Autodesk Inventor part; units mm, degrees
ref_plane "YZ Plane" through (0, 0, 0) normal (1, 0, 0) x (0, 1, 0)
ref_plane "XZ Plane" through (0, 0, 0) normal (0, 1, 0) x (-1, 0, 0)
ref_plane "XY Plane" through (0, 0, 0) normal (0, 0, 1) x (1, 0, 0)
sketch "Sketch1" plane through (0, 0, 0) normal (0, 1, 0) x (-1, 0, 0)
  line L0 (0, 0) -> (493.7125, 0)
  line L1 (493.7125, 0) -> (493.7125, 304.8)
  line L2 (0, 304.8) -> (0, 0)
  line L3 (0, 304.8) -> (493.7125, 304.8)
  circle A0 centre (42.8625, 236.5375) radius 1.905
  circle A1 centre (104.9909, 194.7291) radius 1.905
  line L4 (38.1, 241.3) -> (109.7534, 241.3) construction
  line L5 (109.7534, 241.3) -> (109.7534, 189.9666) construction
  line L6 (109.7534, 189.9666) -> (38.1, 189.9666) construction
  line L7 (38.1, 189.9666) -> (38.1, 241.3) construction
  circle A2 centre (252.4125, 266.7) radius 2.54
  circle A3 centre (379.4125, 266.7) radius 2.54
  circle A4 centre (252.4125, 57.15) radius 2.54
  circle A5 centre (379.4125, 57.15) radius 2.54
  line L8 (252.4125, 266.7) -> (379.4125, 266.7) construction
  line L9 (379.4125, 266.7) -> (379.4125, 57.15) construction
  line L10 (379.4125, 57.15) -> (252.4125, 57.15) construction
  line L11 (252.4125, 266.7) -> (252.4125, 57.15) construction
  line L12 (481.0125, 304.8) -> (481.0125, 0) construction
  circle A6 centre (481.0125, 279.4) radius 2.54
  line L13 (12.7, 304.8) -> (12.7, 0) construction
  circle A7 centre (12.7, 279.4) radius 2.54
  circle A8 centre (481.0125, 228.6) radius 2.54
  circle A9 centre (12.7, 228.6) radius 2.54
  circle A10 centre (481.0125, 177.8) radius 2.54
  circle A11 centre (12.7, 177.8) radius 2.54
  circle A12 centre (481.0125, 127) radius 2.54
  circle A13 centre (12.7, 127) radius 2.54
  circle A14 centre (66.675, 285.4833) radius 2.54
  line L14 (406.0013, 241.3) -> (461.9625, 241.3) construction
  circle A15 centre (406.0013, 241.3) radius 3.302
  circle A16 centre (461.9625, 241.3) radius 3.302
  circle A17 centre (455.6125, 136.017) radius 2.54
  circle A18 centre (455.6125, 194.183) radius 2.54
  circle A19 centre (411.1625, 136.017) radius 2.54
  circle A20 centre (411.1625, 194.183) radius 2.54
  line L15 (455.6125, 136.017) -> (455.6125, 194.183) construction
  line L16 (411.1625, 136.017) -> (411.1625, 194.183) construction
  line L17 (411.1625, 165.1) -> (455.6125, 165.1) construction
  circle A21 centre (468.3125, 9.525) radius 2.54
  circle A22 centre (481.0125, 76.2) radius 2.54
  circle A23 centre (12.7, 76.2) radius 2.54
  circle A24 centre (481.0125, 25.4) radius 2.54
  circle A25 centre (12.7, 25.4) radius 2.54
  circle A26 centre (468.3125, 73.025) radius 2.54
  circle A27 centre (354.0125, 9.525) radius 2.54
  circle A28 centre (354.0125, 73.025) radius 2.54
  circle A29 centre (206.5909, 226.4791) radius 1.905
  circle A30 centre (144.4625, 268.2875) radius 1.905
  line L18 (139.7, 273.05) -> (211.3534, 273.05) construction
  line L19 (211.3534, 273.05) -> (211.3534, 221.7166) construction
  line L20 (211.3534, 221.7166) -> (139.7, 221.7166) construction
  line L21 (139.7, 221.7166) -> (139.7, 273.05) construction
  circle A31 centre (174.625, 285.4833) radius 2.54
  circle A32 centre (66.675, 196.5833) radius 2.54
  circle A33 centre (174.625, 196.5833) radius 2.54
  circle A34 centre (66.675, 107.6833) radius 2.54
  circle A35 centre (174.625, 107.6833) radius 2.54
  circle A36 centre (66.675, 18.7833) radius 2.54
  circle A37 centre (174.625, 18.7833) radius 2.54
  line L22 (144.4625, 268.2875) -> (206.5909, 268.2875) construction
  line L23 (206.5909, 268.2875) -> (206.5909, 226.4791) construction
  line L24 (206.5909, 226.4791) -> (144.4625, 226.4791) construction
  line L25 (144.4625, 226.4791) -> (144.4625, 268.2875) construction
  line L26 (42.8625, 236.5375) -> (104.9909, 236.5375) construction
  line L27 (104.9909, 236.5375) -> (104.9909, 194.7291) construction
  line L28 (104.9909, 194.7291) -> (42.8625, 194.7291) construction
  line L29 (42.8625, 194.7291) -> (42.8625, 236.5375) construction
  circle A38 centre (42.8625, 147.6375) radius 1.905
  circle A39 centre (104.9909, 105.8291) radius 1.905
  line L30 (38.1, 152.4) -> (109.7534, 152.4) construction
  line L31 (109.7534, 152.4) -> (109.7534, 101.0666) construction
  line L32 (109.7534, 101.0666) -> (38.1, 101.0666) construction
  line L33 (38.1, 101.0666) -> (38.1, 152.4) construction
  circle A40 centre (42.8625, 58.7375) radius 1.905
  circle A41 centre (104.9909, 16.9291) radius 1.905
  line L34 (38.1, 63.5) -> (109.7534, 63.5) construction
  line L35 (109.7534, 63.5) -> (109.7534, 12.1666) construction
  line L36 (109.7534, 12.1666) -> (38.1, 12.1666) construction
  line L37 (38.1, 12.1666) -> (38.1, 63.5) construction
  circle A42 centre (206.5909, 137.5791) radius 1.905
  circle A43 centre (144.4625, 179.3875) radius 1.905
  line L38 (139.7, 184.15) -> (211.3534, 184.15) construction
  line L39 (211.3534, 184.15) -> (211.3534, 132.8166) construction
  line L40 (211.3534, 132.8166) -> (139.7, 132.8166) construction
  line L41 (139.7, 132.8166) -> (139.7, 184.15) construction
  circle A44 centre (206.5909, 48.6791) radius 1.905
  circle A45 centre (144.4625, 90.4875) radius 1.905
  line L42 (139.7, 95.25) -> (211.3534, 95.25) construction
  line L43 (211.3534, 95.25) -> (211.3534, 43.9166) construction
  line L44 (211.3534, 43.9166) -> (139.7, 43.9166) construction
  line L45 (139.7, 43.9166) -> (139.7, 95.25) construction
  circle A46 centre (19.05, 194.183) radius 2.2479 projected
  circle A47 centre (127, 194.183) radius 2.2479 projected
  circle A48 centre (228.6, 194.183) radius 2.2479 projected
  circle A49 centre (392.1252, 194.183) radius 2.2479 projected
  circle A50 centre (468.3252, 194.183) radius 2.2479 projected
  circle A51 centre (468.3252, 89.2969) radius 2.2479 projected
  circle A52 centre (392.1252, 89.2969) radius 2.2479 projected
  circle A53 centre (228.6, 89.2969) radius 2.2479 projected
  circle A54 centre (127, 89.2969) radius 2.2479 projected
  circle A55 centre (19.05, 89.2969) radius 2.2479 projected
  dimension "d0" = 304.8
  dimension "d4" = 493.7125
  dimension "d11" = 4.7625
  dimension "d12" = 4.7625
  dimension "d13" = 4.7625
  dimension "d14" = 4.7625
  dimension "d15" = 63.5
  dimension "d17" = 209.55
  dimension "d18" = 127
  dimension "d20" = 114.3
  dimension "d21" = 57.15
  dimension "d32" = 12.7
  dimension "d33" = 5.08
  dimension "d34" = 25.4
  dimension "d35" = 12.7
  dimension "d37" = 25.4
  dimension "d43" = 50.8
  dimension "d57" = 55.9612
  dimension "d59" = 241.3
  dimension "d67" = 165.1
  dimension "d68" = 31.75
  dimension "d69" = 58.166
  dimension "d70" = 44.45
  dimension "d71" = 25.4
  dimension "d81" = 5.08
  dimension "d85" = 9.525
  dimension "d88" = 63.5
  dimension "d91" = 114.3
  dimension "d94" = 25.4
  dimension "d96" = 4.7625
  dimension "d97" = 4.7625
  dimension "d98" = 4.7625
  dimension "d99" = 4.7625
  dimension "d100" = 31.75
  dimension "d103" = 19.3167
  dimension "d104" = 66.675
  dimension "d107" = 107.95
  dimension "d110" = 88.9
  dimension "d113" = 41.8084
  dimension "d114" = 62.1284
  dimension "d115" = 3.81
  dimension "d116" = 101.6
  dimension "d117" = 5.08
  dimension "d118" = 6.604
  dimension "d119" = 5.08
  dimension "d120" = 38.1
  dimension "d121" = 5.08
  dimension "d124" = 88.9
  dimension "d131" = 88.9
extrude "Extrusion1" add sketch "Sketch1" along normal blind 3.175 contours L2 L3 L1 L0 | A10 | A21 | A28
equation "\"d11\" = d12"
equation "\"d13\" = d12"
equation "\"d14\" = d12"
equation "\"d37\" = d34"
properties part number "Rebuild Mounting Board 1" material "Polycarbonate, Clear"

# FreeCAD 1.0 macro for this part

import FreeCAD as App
import Part
import Sketcher
Q = App.Units.Quantity


def add_polygon(sketch, points):
    """Adds a closed chain of lines whose ends are joined by coincident constraints."""
    first, n = sketch.GeometryCount, len(points)
    for a, b in zip(points, points[1:] + points[:1]):
        sketch.addGeometry(Part.LineSegment(App.Vector(*a, 0), App.Vector(*b, 0)), False)
    for i in range(n):
        sketch.addConstraint(Sketcher.Constraint("Coincident", first + i, 2, first + (i + 1) % n, 1))

doc = App.newDocument("Part")
body = doc.addObject("PartDesign::Body", "Body")

# Sketch on XZ plane
sketch1 = doc.addObject("Sketcher::SketchObject", "Sketch")
body.addObject(sketch1)
sketch1.AttachmentSupport = (doc.XZ_Plane, [""])
sketch1.MapMode = "FlatFace"
add_polygon(sketch1, [(0, 304.8), (0, 0), (-493.7, 0), (-493.7, 304.8)])  # lines 0-3
sketch1.addGeometry(Part.Circle(App.Vector(-12.7, 25.4, 0), App.Vector(0, 0, 1), 2.5), False)  # 4
sketch1.addGeometry(Part.Circle(App.Vector(-66.7, 18.8, 0), App.Vector(0, 0, 1), 2.5), False)  # 5
sketch1.addGeometry(Part.Circle(App.Vector(-105, 16.9, 0), App.Vector(0, 0, 1), 1.9), False)  # 6
sketch1.addGeometry(Part.Circle(App.Vector(-42.9, 58.7, 0), App.Vector(0, 0, 1), 1.9), False)  # 7
sketch1.addGeometry(Part.Circle(App.Vector(-174.6, 18.8, 0), App.Vector(0, 0, 1), 2.5), False)  # 8
sketch1.addGeometry(Part.Circle(App.Vector(-206.6, 48.7, 0), App.Vector(0, 0, 1), 1.9), False)  # 9
sketch1.addGeometry(Part.Circle(App.Vector(-12.7, 76.2, 0), App.Vector(0, 0, 1), 2.5), False)  # 10
sketch1.addGeometry(Part.Circle(App.Vector(-19.1, 89.3, 0), App.Vector(0, 0, 1), 2.2), False)  # 11
sketch1.addGeometry(Part.Circle(App.Vector(-66.7, 107.7, 0), App.Vector(0, 0, 1), 2.5), False)  # 12
sketch1.addGeometry(Part.Circle(App.Vector(-105, 105.8, 0), App.Vector(0, 0, 1), 1.9), False)  # 13
sketch1.addGeometry(Part.Circle(App.Vector(-12.7, 127, 0), App.Vector(0, 0, 1), 2.5), False)  # 14
sketch1.addGeometry(Part.Circle(App.Vector(-42.9, 147.6, 0), App.Vector(0, 0, 1), 1.9), False)  # 15
sketch1.addGeometry(Part.Circle(App.Vector(-127, 89.3, 0), App.Vector(0, 0, 1), 2.2), False)  # 16
sketch1.addGeometry(Part.Circle(App.Vector(-144.5, 90.5, 0), App.Vector(0, 0, 1), 1.9), False)  # 17
sketch1.addGeometry(Part.Circle(App.Vector(-174.6, 107.7, 0), App.Vector(0, 0, 1), 2.5), False)  # 18
sketch1.addGeometry(Part.Circle(App.Vector(-228.6, 89.3, 0), App.Vector(0, 0, 1), 2.2), False)  # 19
sketch1.addGeometry(Part.Circle(App.Vector(-206.6, 137.6, 0), App.Vector(0, 0, 1), 1.9), False)  # 20
sketch1.addGeometry(Part.Circle(App.Vector(-354, 9.5, 0), App.Vector(0, 0, 1), 2.5), False)  # 21
sketch1.addGeometry(Part.Circle(App.Vector(-252.4, 57.1, 0), App.Vector(0, 0, 1), 2.5), False)  # 22
sketch1.addGeometry(Part.Circle(App.Vector(-481, 25.4, 0), App.Vector(0, 0, 1), 2.5), False)  # 23
sketch1.addGeometry(Part.Circle(App.Vector(-379.4, 57.1, 0), App.Vector(0, 0, 1), 2.5), False)  # 24
sketch1.addGeometry(Part.Circle(App.Vector(-468.3, 73, 0), App.Vector(0, 0, 1), 2.5), False)  # 25
sketch1.addGeometry(Part.Circle(App.Vector(-392.1, 89.3, 0), App.Vector(0, 0, 1), 2.2), False)  # 26
sketch1.addGeometry(Part.Circle(App.Vector(-481, 76.2, 0), App.Vector(0, 0, 1), 2.5), False)  # 27
sketch1.addGeometry(Part.Circle(App.Vector(-468.3, 89.3, 0), App.Vector(0, 0, 1), 2.2), False)  # 28
sketch1.addGeometry(Part.Circle(App.Vector(-411.2, 136, 0), App.Vector(0, 0, 1), 2.5), False)  # 29
sketch1.addGeometry(Part.Circle(App.Vector(-481, 127, 0), App.Vector(0, 0, 1), 2.5), False)  # 30
sketch1.addGeometry(Part.Circle(App.Vector(-455.6, 136, 0), App.Vector(0, 0, 1), 2.5), False)  # 31
sketch1.addGeometry(Part.Circle(App.Vector(-12.7, 177.8, 0), App.Vector(0, 0, 1), 2.5), False)  # 32
sketch1.addGeometry(Part.Circle(App.Vector(-19.1, 194.2, 0), App.Vector(0, 0, 1), 2.2), False)  # 33
sketch1.addGeometry(Part.Circle(App.Vector(-66.7, 196.6, 0), App.Vector(0, 0, 1), 2.5), False)  # 34
sketch1.addGeometry(Part.Circle(App.Vector(-105, 194.7, 0), App.Vector(0, 0, 1), 1.9), False)  # 35
sketch1.addGeometry(Part.Circle(App.Vector(-144.5, 179.4, 0), App.Vector(0, 0, 1), 1.9), False)  # 36
sketch1.addGeometry(Part.Circle(App.Vector(-127, 194.2, 0), App.Vector(0, 0, 1), 2.2), False)  # 37
sketch1.addGeometry(Part.Circle(App.Vector(-174.6, 196.6, 0), App.Vector(0, 0, 1), 2.5), False)  # 38
sketch1.addGeometry(Part.Circle(App.Vector(-228.6, 194.2, 0), App.Vector(0, 0, 1), 2.2), False)  # 39
sketch1.addGeometry(Part.Circle(App.Vector(-206.6, 226.5, 0), App.Vector(0, 0, 1), 1.9), False)  # 40
sketch1.addGeometry(Part.Circle(App.Vector(-12.7, 228.6, 0), App.Vector(0, 0, 1), 2.5), False)  # 41
sketch1.addGeometry(Part.Circle(App.Vector(-42.9, 236.5, 0), App.Vector(0, 0, 1), 1.9), False)  # 42
sketch1.addGeometry(Part.Circle(App.Vector(-12.7, 279.4, 0), App.Vector(0, 0, 1), 2.5), False)  # 43
sketch1.addGeometry(Part.Circle(App.Vector(-66.7, 285.5, 0), App.Vector(0, 0, 1), 2.5), False)  # 44
sketch1.addGeometry(Part.Circle(App.Vector(-144.5, 268.3, 0), App.Vector(0, 0, 1), 1.9), False)  # 45
sketch1.addGeometry(Part.Circle(App.Vector(-174.6, 285.5, 0), App.Vector(0, 0, 1), 2.5), False)  # 46
sketch1.addGeometry(Part.Circle(App.Vector(-392.1, 194.2, 0), App.Vector(0, 0, 1), 2.2), False)  # 47
sketch1.addGeometry(Part.Circle(App.Vector(-411.2, 194.2, 0), App.Vector(0, 0, 1), 2.5), False)  # 48
sketch1.addGeometry(Part.Circle(App.Vector(-455.6, 194.2, 0), App.Vector(0, 0, 1), 2.5), False)  # 49
sketch1.addGeometry(Part.Circle(App.Vector(-468.3, 194.2, 0), App.Vector(0, 0, 1), 2.2), False)  # 50
sketch1.addGeometry(Part.Circle(App.Vector(-252.4, 266.7, 0), App.Vector(0, 0, 1), 2.5), False)  # 51
sketch1.addGeometry(Part.Circle(App.Vector(-406, 241.3, 0), App.Vector(0, 0, 1), 3.3), False)  # 52
sketch1.addGeometry(Part.Circle(App.Vector(-462, 241.3, 0), App.Vector(0, 0, 1), 3.3), False)  # 53
sketch1.addGeometry(Part.Circle(App.Vector(-481, 228.6, 0), App.Vector(0, 0, 1), 2.5), False)  # 54
sketch1.addGeometry(Part.Circle(App.Vector(-379.4, 266.7, 0), App.Vector(0, 0, 1), 2.5), False)  # 55
sketch1.addGeometry(Part.Circle(App.Vector(-481, 279.4, 0), App.Vector(0, 0, 1), 2.5), False)  # 56
sketch1.addConstraint(Sketcher.Constraint("Vertical", 0))
sketch1.addConstraint(Sketcher.Constraint("Horizontal", 1))
sketch1.addConstraint(Sketcher.Constraint("Vertical", 2))
sketch1.addConstraint(Sketcher.Constraint("Horizontal", 3))
sketch1.addConstraint(Sketcher.Constraint("Coincident", 0, 2, -1, 1))
sketch1.addConstraint(Sketcher.Constraint("Equal", 4, 5))
sketch1.addConstraint(Sketcher.Constraint("Equal", 6, 7))
sketch1.addConstraint(Sketcher.Constraint("Equal", 5, 8))
sketch1.addConstraint(Sketcher.Constraint("Equal", 7, 9))
sketch1.addConstraint(Sketcher.Constraint("Equal", 8, 10))
sketch1.addConstraint(Sketcher.Constraint("Equal", 10, 12))
sketch1.addConstraint(Sketcher.Constraint("Equal", 9, 13))
sketch1.addConstraint(Sketcher.Constraint("Equal", 12, 14))
sketch1.addConstraint(Sketcher.Constraint("Equal", 13, 15))
sketch1.addConstraint(Sketcher.Constraint("Equal", 11, 16))
sketch1.addConstraint(Sketcher.Constraint("Equal", 15, 17))
sketch1.addConstraint(Sketcher.Constraint("Equal", 14, 18))
sketch1.addConstraint(Sketcher.Constraint("Equal", 16, 19))
sketch1.addConstraint(Sketcher.Constraint("Equal", 17, 20))
sketch1.addConstraint(Sketcher.Constraint("Equal", 18, 21))
sketch1.addConstraint(Sketcher.Constraint("Equal", 21, 22))
sketch1.addConstraint(Sketcher.Constraint("Equal", 22, 23))
sketch1.addConstraint(Sketcher.Constraint("Equal", 23, 24))
sketch1.addConstraint(Sketcher.Constraint("Equal", 24, 25))
sketch1.addConstraint(Sketcher.Constraint("Equal", 19, 26))
sketch1.addConstraint(Sketcher.Constraint("Equal", 25, 27))
sketch1.addConstraint(Sketcher.Constraint("Equal", 26, 28))
sketch1.addConstraint(Sketcher.Constraint("Equal", 27, 29))
sketch1.addConstraint(Sketcher.Constraint("Equal", 29, 30))
sketch1.addConstraint(Sketcher.Constraint("Equal", 30, 31))
sketch1.addConstraint(Sketcher.Constraint("Equal", 31, 32))
sketch1.addConstraint(Sketcher.Constraint("Equal", 28, 33))
sketch1.addConstraint(Sketcher.Constraint("Equal", 32, 34))
sketch1.addConstraint(Sketcher.Constraint("Equal", 20, 35))
sketch1.addConstraint(Sketcher.Constraint("Equal", 35, 36))
sketch1.addConstraint(Sketcher.Constraint("Equal", 33, 37))
sketch1.addConstraint(Sketcher.Constraint("Equal", 34, 38))
sketch1.addConstraint(Sketcher.Constraint("Equal", 37, 39))
sketch1.addConstraint(Sketcher.Constraint("Equal", 36, 40))
sketch1.addConstraint(Sketcher.Constraint("Equal", 38, 41))
sketch1.addConstraint(Sketcher.Constraint("Equal", 40, 42))
sketch1.addConstraint(Sketcher.Constraint("Equal", 41, 43))
sketch1.addConstraint(Sketcher.Constraint("Equal", 43, 44))
sketch1.addConstraint(Sketcher.Constraint("Equal", 42, 45))
sketch1.addConstraint(Sketcher.Constraint("Equal", 44, 46))
sketch1.addConstraint(Sketcher.Constraint("Equal", 39, 47))
sketch1.addConstraint(Sketcher.Constraint("Equal", 46, 48))
sketch1.addConstraint(Sketcher.Constraint("Equal", 48, 49))
sketch1.addConstraint(Sketcher.Constraint("Equal", 47, 50))
sketch1.addConstraint(Sketcher.Constraint("Equal", 49, 51))
sketch1.addConstraint(Sketcher.Constraint("Equal", 52, 53))
sketch1.addConstraint(Sketcher.Constraint("Equal", 51, 54))
sketch1.addConstraint(Sketcher.Constraint("Equal", 54, 55))
sketch1.addConstraint(Sketcher.Constraint("Equal", 55, 56))
sketch1.addConstraint(Sketcher.Constraint("Horizontal", 5, 3, 8, 3))
sketch1.addConstraint(Sketcher.Constraint("Horizontal", 11, 3, 16, 3))
sketch1.addConstraint(Sketcher.Constraint("Horizontal", 12, 3, 18, 3))
sketch1.addConstraint(Sketcher.Constraint("Horizontal", 16, 3, 19, 3))
sketch1.addConstraint(Sketcher.Constraint("Horizontal", 4, 3, 23, 3))
sketch1.addConstraint(Sketcher.Constraint("Horizontal", 22, 3, 24, 3))
sketch1.addConstraint(Sketcher.Constraint("Horizontal", 19, 3, 26, 3))
sketch1.addConstraint(Sketcher.Constraint("Horizontal", 10, 3, 27, 3))
sketch1.addConstraint(Sketcher.Constraint("Horizontal", 26, 3, 28, 3))
sketch1.addConstraint(Sketcher.Constraint("Horizontal", 14, 3, 30, 3))
sketch1.addConstraint(Sketcher.Constraint("Horizontal", 29, 3, 31, 3))
sketch1.addConstraint(Sketcher.Constraint("Horizontal", 33, 3, 37, 3))
sketch1.addConstraint(Sketcher.Constraint("Horizontal", 34, 3, 38, 3))
sketch1.addConstraint(Sketcher.Constraint("Horizontal", 37, 3, 39, 3))
sketch1.addConstraint(Sketcher.Constraint("Horizontal", 44, 3, 46, 3))
sketch1.addConstraint(Sketcher.Constraint("Horizontal", 39, 3, 47, 3))
sketch1.addConstraint(Sketcher.Constraint("Horizontal", 47, 3, 48, 3))
sketch1.addConstraint(Sketcher.Constraint("Horizontal", 48, 3, 49, 3))
sketch1.addConstraint(Sketcher.Constraint("Horizontal", 49, 3, 50, 3))
sketch1.addConstraint(Sketcher.Constraint("Horizontal", 52, 3, 53, 3))
sketch1.addConstraint(Sketcher.Constraint("Horizontal", 41, 3, 54, 3))
sketch1.addConstraint(Sketcher.Constraint("Horizontal", 51, 3, 55, 3))
sketch1.addConstraint(Sketcher.Constraint("Horizontal", 43, 3, 56, 3))
sketch1.addConstraint(Sketcher.Constraint("Vertical", 4, 3, 10, 3))
sketch1.addConstraint(Sketcher.Constraint("Vertical", 5, 3, 12, 3))
sketch1.addConstraint(Sketcher.Constraint("Vertical", 6, 3, 13, 3))
sketch1.addConstraint(Sketcher.Constraint("Vertical", 10, 3, 14, 3))
sketch1.addConstraint(Sketcher.Constraint("Vertical", 7, 3, 15, 3))
sketch1.addConstraint(Sketcher.Constraint("Vertical", 8, 3, 18, 3))
sketch1.addConstraint(Sketcher.Constraint("Vertical", 9, 3, 20, 3))
sketch1.addConstraint(Sketcher.Constraint("Vertical", 23, 3, 27, 3))
sketch1.addConstraint(Sketcher.Constraint("Vertical", 27, 3, 30, 3))
sketch1.addConstraint(Sketcher.Constraint("Vertical", 14, 3, 32, 3))
sketch1.addConstraint(Sketcher.Constraint("Vertical", 11, 3, 33, 3))
sketch1.addConstraint(Sketcher.Constraint("Vertical", 12, 3, 34, 3))
sketch1.addConstraint(Sketcher.Constraint("Vertical", 13, 3, 35, 3))
sketch1.addConstraint(Sketcher.Constraint("Vertical", 17, 3, 36, 3))
sketch1.addConstraint(Sketcher.Constraint("Vertical", 16, 3, 37, 3))
sketch1.addConstraint(Sketcher.Constraint("Vertical", 18, 3, 38, 3))
sketch1.addConstraint(Sketcher.Constraint("Vertical", 19, 3, 39, 3))
sketch1.addConstraint(Sketcher.Constraint("Vertical", 20, 3, 40, 3))
sketch1.addConstraint(Sketcher.Constraint("Vertical", 32, 3, 41, 3))
sketch1.addConstraint(Sketcher.Constraint("Vertical", 15, 3, 42, 3))
sketch1.addConstraint(Sketcher.Constraint("Vertical", 41, 3, 43, 3))
sketch1.addConstraint(Sketcher.Constraint("Vertical", 34, 3, 44, 3))
sketch1.addConstraint(Sketcher.Constraint("Vertical", 36, 3, 45, 3))
sketch1.addConstraint(Sketcher.Constraint("Vertical", 38, 3, 46, 3))
sketch1.addConstraint(Sketcher.Constraint("Vertical", 26, 3, 47, 3))
sketch1.addConstraint(Sketcher.Constraint("Vertical", 29, 3, 48, 3))
sketch1.addConstraint(Sketcher.Constraint("Vertical", 31, 3, 49, 3))
sketch1.addConstraint(Sketcher.Constraint("Vertical", 28, 3, 50, 3))
sketch1.addConstraint(Sketcher.Constraint("Vertical", 22, 3, 51, 3))
sketch1.addConstraint(Sketcher.Constraint("Vertical", 30, 3, 54, 3))
sketch1.addConstraint(Sketcher.Constraint("Vertical", 24, 3, 55, 3))
sketch1.addConstraint(Sketcher.Constraint("Vertical", 54, 3, 56, 3))
sketch1.addConstraint(Sketcher.Constraint("Diameter", 4, Q("0.2 in")))
sketch1.addConstraint(Sketcher.Constraint("Diameter", 6, Q("0.15 in")))
sketch1.addConstraint(Sketcher.Constraint("Diameter", 52, Q("0.26 in")))
sketch1.addConstraint(Sketcher.Constraint("DistanceY", 0, 2, 0, 1, Q("12 in")))
sketch1.addConstraint(Sketcher.Constraint("DistanceY", -1, 1, 4, 3, Q("1 in")))
sketch1.addConstraint(Sketcher.Constraint("DistanceY", -1, 1, 14, 3, Q("5 in")))
sketch1.addConstraint(Sketcher.Constraint("DistanceX", 16, 3, -1, 1, Q("5 in")))
sketch1.addConstraint(Sketcher.Constraint("DistanceX", 9, 3, 6, 3, Q("4 in")))
sketch1.addConstraint(Sketcher.Constraint("DistanceY", 4, 3, 10, 3, Q("2 in")))
sketch1.addConstraint(Sketcher.Constraint("DistanceX", 19, 3, 16, 3, Q("4 in")))
sketch1.addConstraint(Sketcher.Constraint("DistanceX", 23, 3, 21, 3, Q("5 in")))
sketch1.addConstraint(Sketcher.Constraint("DistanceX", 24, 3, 21, 3, Q("1 in")))
sketch1.addConstraint(Sketcher.Constraint("DistanceX", 24, 3, 22, 3, Q("5 in")))
sketch1.addConstraint(Sketcher.Constraint("DistanceX", 30, 3, 31, 3, Q("1 in")))
sketch1.addConstraint(Sketcher.Constraint("DistanceY", 14, 3, 32, 3, Q("2 in")))
sketch1.addConstraint(Sketcher.Constraint("DistanceY", 32, 3, 41, 3, Q("2 in")))
sketch1.addConstraint(Sketcher.Constraint("DistanceY", 41, 3, 43, 3, Q("2 in")))
sketch1.addConstraint(Sketcher.Constraint("DistanceX", 53, 3, 48, 3, Q("2 in")))
sketch1.addConstraint(Sketcher.Constraint("DistanceY", 52, 3, 55, 3, Q("1 in")))
sketch1.addConstraint(Sketcher.Constraint("DistanceX", 1, 2, 25, 3, Q("1 in")))
sketch1.addConstraint(Sketcher.Constraint("DistanceX", 4, 3, -1, 1, Q("0.5 in")))
sketch1.addConstraint(Sketcher.Constraint("DistanceY", -1, 1, 52, 3, Q("9.5 in")))
sketch1.addConstraint(Sketcher.Constraint("DistanceY", 5, 3, 12, 3, Q("3.5 in")))
sketch1.addConstraint(Sketcher.Constraint("DistanceY", 6, 3, 13, 3, Q("3.5 in")))
sketch1.addConstraint(Sketcher.Constraint("DistanceY", 9, 3, 20, 3, Q("3.5 in")))
sketch1.addConstraint(Sketcher.Constraint("DistanceX", 23, 3, 25, 3, Q("0.5 in")))
sketch1.addConstraint(Sketcher.Constraint("DistanceY", 21, 3, 25, 3, Q("2.5 in")))
sketch1.addConstraint(Sketcher.Constraint("DistanceY", 12, 3, 34, 3, Q("3.5 in")))
sketch1.addConstraint(Sketcher.Constraint("DistanceY", 13, 3, 35, 3, Q("3.5 in")))
sketch1.addConstraint(Sketcher.Constraint("DistanceY", 20, 3, 40, 3, Q("3.5 in")))
sketch1.addConstraint(Sketcher.Constraint("DistanceY", 34, 3, 44, 3, Q("3.5 in")))
sketch1.addConstraint(Sketcher.Constraint("DistanceX", 1, 2, 1, 1, Q("19.4375 in")))
sketch1.addConstraint(Sketcher.Constraint("DistanceY", -1, 1, 22, 3, Q("2.25 in")))
sketch1.addConstraint(Sketcher.Constraint("DistanceX", 8, 3, 5, 3, Q("4.25 in")))
sketch1.addConstraint(Sketcher.Constraint("DistanceY", 6, 3, 9, 3, Q("1.25 in")))
sketch1.addConstraint(Sketcher.Constraint("DistanceX", 29, 3, 24, 3, Q("1.25 in")))
sketch1.addConstraint(Sketcher.Constraint("DistanceY", 29, 3, 47, 3, Q("2.29 in")))
sketch1.addConstraint(Sketcher.Constraint("DistanceX", 51, 3, 45, 3, Q("4.25 in")))
sketch1.addConstraint(Sketcher.Constraint("Diameter", 11, Q("0.177 in")))
sketch1.addConstraint(Sketcher.Constraint("DistanceX", 5, 3, -1, 1, Q("2.625 in")))
sketch1.addConstraint(Sketcher.Constraint("DistanceY", -1, 1, 21, 3, Q("0.375 in")))
sketch1.addConstraint(Sketcher.Constraint("DistanceX", 6, 3, 7, 3, Q("2.446 in")))
sketch1.addConstraint(Sketcher.Constraint("DistanceY", 6, 3, 7, 3, Q("1.646 in")))
sketch1.addConstraint(Sketcher.Constraint("DistanceY", 13, 3, 15, 3, Q("1.646 in")))
sketch1.addConstraint(Sketcher.Constraint("DistanceX", 9, 3, 17, 3, Q("2.446 in")))
sketch1.addConstraint(Sketcher.Constraint("DistanceY", 9, 3, 17, 3, Q("1.646 in")))
sketch1.addConstraint(Sketcher.Constraint("DistanceX", 28, 3, 26, 3, Q("3 in")))
sketch1.addConstraint(Sketcher.Constraint("DistanceY", 20, 3, 36, 3, Q("1.646 in")))
sketch1.addConstraint(Sketcher.Constraint("DistanceY", 35, 3, 42, 3, Q("1.646 in")))
sketch1.addConstraint(Sketcher.Constraint("DistanceY", 40, 3, 45, 3, Q("1.646 in")))
sketch1.addConstraint(Sketcher.Constraint("DistanceY", 12, 3, 14, 3, Q("0.7605 in")))
sketch1.addConstraint(Sketcher.Constraint("DistanceX", 53, 3, 52, 3, Q("2.2032 in")))
sketch1.addConstraint(Sketcher.Constraint("DistanceX", 11, 3, -1, 1, Q("0.75 in")))
sketch1.addConstraint(Sketcher.Constraint("DistanceY", 25, 3, 29, 3, Q("2.48 in")))
sketch1.addConstraint(Sketcher.Constraint("DistanceY", -1, 1, 7, 3, Q("2.3125 in")))
sketch1.addConstraint(Sketcher.Constraint("DistanceY", -1, 1, 11, 3, Q("3.5156299 in")))
sketch1.addConstraint(Sketcher.Constraint("DistanceX", 26, 3, -1, 1, Q("15.438 in")))
pad1 = doc.addObject("PartDesign::Pad", "Pad")
body.addObject(pad1)
pad1.Profile = sketch1
pad1.Length = Q("0.125 in")
pad1.Reversed = True

doc.recompute()
